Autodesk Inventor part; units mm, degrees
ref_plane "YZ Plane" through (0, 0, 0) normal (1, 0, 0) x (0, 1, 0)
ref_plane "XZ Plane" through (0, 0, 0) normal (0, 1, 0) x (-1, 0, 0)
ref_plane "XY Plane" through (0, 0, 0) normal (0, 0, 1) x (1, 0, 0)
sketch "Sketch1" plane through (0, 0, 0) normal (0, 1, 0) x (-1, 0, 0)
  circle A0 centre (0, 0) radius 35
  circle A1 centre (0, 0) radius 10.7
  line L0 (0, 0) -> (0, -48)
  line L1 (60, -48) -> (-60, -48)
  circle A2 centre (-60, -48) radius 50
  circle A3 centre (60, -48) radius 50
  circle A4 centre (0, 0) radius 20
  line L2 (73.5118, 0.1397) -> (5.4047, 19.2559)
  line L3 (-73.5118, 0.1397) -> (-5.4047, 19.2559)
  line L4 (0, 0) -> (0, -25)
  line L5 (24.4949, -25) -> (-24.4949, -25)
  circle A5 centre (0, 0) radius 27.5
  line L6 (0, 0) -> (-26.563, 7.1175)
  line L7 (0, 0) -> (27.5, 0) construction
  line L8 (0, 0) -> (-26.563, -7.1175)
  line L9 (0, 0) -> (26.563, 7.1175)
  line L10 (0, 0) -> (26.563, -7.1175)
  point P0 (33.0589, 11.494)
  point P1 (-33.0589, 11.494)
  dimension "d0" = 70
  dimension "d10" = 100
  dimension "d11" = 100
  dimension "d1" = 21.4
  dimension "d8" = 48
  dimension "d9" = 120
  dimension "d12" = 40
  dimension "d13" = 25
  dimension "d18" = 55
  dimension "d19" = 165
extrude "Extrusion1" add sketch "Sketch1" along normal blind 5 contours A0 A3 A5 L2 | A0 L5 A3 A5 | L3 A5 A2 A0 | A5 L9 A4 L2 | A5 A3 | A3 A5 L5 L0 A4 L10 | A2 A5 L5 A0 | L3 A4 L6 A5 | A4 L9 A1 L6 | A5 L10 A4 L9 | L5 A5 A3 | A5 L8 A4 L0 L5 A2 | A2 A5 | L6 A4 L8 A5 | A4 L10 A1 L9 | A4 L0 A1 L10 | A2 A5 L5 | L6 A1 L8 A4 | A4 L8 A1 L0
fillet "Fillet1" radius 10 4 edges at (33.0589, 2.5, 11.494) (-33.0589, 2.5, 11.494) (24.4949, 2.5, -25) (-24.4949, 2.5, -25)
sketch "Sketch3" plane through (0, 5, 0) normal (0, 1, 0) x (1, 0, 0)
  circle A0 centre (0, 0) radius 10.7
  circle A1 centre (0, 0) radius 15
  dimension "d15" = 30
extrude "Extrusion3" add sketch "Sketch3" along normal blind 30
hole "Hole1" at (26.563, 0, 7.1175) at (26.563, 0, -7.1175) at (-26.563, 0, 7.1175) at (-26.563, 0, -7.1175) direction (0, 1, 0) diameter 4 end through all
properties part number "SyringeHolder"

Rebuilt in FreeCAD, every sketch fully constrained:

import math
import FreeCAD as App
import Part
import Sketcher
from FreeCAD import Vector


def edges_at(feature, points):
    """Names of the edges that pass closest to the given points."""
    edges = feature.Shape.Edges
    near = lambda p: min(range(len(edges)), key=lambda i: edges[i].distToShape(Part.Vertex(*p))[0])
    return sorted({f"Edge{near(p) + 1}" for p in points})

doc = App.newDocument("Part")
body = doc.addObject("PartDesign::Body", "Body")

# Sketch on XZ plane
sketch1 = doc.addObject("Sketcher::SketchObject", "Sketch")
body.addObject(sketch1)
sketch1.AttachmentSupport = (doc.XZ_Plane, [""])
sketch1.MapMode = "FlatFace"
sketch1.addGeometry(Part.LineSegment(Vector(-33, 11, 0), Vector(-5, 19, 0)), False)
sketch1.addGeometry(Part.ArcOfCircle(Part.Circle(Vector(0, 0, 0), Vector(0, 0, 1), 20), math.radians(74), math.radians(106)), False)
sketch1.addGeometry(Part.LineSegment(Vector(5, 19, 0), Vector(33, 11, 0)), False)
sketch1.addGeometry(Part.ArcOfCircle(Part.Circle(Vector(0, 0, 0), Vector(0, 0, 1), 35), math.radians(-46), math.radians(19)), False)
sketch1.addGeometry(Part.LineSegment(Vector(24, -25, 0), Vector(-24, -25, 0)), False)
sketch1.addGeometry(Part.ArcOfCircle(Part.Circle(Vector(0, 0, 0), Vector(0, 0, 1), 35), math.radians(161), math.radians(226)), False)
sketch1.addGeometry(Part.Circle(Vector(0, 0, 0), Vector(0, 0, 1), 11), False)
sketch1.addConstraint(Sketcher.Constraint("Tangent", 0, 2, 1, 2))
sketch1.addConstraint(Sketcher.Constraint("Tangent", 1, 1, 2, 1))
sketch1.addConstraint(Sketcher.Constraint("Coincident", 2, 2, 3, 2))
sketch1.addConstraint(Sketcher.Constraint("Coincident", 3, 1, 4, 1))
sketch1.addConstraint(Sketcher.Constraint("Coincident", 4, 2, 5, 2))
sketch1.addConstraint(Sketcher.Constraint("Coincident", 5, 1, 0, 1))
sketch1.addConstraint(Sketcher.Constraint("Horizontal", 4))
sketch1.addConstraint(Sketcher.Constraint("Coincident", 1, 3, -1, 1))
sketch1.addConstraint(Sketcher.Constraint("Coincident", 3, 3, -1, 1))
sketch1.addConstraint(Sketcher.Constraint("Coincident", 5, 3, -1, 1))
sketch1.addConstraint(Sketcher.Constraint("Coincident", 6, 3, -1, 1))
sketch1.addConstraint(Sketcher.Constraint("Equal", 3, 5))
sketch1.addConstraint(Sketcher.Constraint("Horizontal", 0, 2, 1, 1))
sketch1.addConstraint(Sketcher.Constraint("Radius", 1, 20.0))
sketch1.addConstraint(Sketcher.Constraint("Radius", 3, 35.0))
sketch1.addConstraint(Sketcher.Constraint("Diameter", 6, 21.4))
sketch1.addConstraint(Sketcher.Constraint("DistanceY", 3, 1, -1, 1, 25.0))
sketch1.addConstraint(Sketcher.Constraint("DistanceY", -1, 1, 0, 2, 19.256))
pad1 = doc.addObject("PartDesign::Pad", "Pad")
body.addObject(pad1)
pad1.Profile = sketch1
pad1.Length = 5
pad1.Reversed = True
doc.recompute()

fillet = doc.addObject("PartDesign::Fillet", "Fillet")
body.addObject(fillet)
fillet.Base = (pad1, edges_at(pad1, [
    (33.059, 2.5, 11.494),
    (-33.059, 2.5, 11.494),
    (24.495, 2.5, -25),
    (-24.495, 2.5, -25),
]))
fillet.Radius = 10

# Sketch on XZ plane
sketch2 = doc.addObject("Sketcher::SketchObject", "Sketch001")
body.addObject(sketch2)
sketch2.AttachmentSupport = (doc.XZ_Plane, [""])
sketch2.MapMode = "FlatFace"
sketch2.AttachmentOffset = App.Placement(Vector(0, 0, -5), App.Rotation())
sketch2.addGeometry(Part.Circle(Vector(0, 0, 0), Vector(0, 0, 1), 15), False)
sketch2.addGeometry(Part.Circle(Vector(0, 0, 0), Vector(0, 0, 1), 11), False)
sketch2.addConstraint(Sketcher.Constraint("Coincident", 0, 3, -1, 1))
sketch2.addConstraint(Sketcher.Constraint("Coincident", 1, 3, -1, 1))
sketch2.addConstraint(Sketcher.Constraint("Diameter", 0, 30.0))
sketch2.addConstraint(Sketcher.Constraint("Diameter", 1, 21.4))
pad2 = doc.addObject("PartDesign::Pad", "Pad001")
body.addObject(pad2)
pad2.Profile = sketch2
pad2.Length = 30
pad2.Reversed = True

# Sketch on XZ plane
sketch3 = doc.addObject("Sketcher::SketchObject", "Sketch002")
body.addObject(sketch3)
sketch3.AttachmentSupport = (doc.XZ_Plane, [""])
sketch3.MapMode = "FlatFace"
sketch3.addGeometry(Part.Circle(Vector(26.6, 7.1, 0), Vector(0, 0, 1), 2), False)
sketch3.addGeometry(Part.Circle(Vector(26.6, -7.1, 0), Vector(0, 0, 1), 2), False)
sketch3.addGeometry(Part.Circle(Vector(-26.6, 7.1, 0), Vector(0, 0, 1), 2), False)
sketch3.addGeometry(Part.Circle(Vector(-26.6, -7.1, 0), Vector(0, 0, 1), 2), False)
sketch3.addConstraint(Sketcher.Constraint("Equal", 0, 1))
sketch3.addConstraint(Sketcher.Constraint("Equal", 1, 2))
sketch3.addConstraint(Sketcher.Constraint("Equal", 2, 3))
sketch3.addConstraint(Sketcher.Constraint("Symmetric", 1, 3, 2, 3, -1, 1))
sketch3.addConstraint(Sketcher.Constraint("Symmetric", 0, 3, 3, 3, -1, 1))
sketch3.addConstraint(Sketcher.Constraint("Symmetric", 0, 3, 2, 3, -2))
sketch3.addConstraint(Sketcher.Constraint("Diameter", 0, 4.0))
sketch3.addConstraint(Sketcher.Constraint("DistanceX", -1, 1, 0, 3, 26.563))
sketch3.addConstraint(Sketcher.Constraint("DistanceY", 1, 3, 0, 3, 14.235))
doc.recompute()
hole = doc.addObject("PartDesign::Hole", "Hole")
body.addObject(hole)
hole.Profile = sketch3
hole.ThreadType = "None"
hole.Diameter = 4
hole.DepthType = "ThroughAll"

doc.recompute()
